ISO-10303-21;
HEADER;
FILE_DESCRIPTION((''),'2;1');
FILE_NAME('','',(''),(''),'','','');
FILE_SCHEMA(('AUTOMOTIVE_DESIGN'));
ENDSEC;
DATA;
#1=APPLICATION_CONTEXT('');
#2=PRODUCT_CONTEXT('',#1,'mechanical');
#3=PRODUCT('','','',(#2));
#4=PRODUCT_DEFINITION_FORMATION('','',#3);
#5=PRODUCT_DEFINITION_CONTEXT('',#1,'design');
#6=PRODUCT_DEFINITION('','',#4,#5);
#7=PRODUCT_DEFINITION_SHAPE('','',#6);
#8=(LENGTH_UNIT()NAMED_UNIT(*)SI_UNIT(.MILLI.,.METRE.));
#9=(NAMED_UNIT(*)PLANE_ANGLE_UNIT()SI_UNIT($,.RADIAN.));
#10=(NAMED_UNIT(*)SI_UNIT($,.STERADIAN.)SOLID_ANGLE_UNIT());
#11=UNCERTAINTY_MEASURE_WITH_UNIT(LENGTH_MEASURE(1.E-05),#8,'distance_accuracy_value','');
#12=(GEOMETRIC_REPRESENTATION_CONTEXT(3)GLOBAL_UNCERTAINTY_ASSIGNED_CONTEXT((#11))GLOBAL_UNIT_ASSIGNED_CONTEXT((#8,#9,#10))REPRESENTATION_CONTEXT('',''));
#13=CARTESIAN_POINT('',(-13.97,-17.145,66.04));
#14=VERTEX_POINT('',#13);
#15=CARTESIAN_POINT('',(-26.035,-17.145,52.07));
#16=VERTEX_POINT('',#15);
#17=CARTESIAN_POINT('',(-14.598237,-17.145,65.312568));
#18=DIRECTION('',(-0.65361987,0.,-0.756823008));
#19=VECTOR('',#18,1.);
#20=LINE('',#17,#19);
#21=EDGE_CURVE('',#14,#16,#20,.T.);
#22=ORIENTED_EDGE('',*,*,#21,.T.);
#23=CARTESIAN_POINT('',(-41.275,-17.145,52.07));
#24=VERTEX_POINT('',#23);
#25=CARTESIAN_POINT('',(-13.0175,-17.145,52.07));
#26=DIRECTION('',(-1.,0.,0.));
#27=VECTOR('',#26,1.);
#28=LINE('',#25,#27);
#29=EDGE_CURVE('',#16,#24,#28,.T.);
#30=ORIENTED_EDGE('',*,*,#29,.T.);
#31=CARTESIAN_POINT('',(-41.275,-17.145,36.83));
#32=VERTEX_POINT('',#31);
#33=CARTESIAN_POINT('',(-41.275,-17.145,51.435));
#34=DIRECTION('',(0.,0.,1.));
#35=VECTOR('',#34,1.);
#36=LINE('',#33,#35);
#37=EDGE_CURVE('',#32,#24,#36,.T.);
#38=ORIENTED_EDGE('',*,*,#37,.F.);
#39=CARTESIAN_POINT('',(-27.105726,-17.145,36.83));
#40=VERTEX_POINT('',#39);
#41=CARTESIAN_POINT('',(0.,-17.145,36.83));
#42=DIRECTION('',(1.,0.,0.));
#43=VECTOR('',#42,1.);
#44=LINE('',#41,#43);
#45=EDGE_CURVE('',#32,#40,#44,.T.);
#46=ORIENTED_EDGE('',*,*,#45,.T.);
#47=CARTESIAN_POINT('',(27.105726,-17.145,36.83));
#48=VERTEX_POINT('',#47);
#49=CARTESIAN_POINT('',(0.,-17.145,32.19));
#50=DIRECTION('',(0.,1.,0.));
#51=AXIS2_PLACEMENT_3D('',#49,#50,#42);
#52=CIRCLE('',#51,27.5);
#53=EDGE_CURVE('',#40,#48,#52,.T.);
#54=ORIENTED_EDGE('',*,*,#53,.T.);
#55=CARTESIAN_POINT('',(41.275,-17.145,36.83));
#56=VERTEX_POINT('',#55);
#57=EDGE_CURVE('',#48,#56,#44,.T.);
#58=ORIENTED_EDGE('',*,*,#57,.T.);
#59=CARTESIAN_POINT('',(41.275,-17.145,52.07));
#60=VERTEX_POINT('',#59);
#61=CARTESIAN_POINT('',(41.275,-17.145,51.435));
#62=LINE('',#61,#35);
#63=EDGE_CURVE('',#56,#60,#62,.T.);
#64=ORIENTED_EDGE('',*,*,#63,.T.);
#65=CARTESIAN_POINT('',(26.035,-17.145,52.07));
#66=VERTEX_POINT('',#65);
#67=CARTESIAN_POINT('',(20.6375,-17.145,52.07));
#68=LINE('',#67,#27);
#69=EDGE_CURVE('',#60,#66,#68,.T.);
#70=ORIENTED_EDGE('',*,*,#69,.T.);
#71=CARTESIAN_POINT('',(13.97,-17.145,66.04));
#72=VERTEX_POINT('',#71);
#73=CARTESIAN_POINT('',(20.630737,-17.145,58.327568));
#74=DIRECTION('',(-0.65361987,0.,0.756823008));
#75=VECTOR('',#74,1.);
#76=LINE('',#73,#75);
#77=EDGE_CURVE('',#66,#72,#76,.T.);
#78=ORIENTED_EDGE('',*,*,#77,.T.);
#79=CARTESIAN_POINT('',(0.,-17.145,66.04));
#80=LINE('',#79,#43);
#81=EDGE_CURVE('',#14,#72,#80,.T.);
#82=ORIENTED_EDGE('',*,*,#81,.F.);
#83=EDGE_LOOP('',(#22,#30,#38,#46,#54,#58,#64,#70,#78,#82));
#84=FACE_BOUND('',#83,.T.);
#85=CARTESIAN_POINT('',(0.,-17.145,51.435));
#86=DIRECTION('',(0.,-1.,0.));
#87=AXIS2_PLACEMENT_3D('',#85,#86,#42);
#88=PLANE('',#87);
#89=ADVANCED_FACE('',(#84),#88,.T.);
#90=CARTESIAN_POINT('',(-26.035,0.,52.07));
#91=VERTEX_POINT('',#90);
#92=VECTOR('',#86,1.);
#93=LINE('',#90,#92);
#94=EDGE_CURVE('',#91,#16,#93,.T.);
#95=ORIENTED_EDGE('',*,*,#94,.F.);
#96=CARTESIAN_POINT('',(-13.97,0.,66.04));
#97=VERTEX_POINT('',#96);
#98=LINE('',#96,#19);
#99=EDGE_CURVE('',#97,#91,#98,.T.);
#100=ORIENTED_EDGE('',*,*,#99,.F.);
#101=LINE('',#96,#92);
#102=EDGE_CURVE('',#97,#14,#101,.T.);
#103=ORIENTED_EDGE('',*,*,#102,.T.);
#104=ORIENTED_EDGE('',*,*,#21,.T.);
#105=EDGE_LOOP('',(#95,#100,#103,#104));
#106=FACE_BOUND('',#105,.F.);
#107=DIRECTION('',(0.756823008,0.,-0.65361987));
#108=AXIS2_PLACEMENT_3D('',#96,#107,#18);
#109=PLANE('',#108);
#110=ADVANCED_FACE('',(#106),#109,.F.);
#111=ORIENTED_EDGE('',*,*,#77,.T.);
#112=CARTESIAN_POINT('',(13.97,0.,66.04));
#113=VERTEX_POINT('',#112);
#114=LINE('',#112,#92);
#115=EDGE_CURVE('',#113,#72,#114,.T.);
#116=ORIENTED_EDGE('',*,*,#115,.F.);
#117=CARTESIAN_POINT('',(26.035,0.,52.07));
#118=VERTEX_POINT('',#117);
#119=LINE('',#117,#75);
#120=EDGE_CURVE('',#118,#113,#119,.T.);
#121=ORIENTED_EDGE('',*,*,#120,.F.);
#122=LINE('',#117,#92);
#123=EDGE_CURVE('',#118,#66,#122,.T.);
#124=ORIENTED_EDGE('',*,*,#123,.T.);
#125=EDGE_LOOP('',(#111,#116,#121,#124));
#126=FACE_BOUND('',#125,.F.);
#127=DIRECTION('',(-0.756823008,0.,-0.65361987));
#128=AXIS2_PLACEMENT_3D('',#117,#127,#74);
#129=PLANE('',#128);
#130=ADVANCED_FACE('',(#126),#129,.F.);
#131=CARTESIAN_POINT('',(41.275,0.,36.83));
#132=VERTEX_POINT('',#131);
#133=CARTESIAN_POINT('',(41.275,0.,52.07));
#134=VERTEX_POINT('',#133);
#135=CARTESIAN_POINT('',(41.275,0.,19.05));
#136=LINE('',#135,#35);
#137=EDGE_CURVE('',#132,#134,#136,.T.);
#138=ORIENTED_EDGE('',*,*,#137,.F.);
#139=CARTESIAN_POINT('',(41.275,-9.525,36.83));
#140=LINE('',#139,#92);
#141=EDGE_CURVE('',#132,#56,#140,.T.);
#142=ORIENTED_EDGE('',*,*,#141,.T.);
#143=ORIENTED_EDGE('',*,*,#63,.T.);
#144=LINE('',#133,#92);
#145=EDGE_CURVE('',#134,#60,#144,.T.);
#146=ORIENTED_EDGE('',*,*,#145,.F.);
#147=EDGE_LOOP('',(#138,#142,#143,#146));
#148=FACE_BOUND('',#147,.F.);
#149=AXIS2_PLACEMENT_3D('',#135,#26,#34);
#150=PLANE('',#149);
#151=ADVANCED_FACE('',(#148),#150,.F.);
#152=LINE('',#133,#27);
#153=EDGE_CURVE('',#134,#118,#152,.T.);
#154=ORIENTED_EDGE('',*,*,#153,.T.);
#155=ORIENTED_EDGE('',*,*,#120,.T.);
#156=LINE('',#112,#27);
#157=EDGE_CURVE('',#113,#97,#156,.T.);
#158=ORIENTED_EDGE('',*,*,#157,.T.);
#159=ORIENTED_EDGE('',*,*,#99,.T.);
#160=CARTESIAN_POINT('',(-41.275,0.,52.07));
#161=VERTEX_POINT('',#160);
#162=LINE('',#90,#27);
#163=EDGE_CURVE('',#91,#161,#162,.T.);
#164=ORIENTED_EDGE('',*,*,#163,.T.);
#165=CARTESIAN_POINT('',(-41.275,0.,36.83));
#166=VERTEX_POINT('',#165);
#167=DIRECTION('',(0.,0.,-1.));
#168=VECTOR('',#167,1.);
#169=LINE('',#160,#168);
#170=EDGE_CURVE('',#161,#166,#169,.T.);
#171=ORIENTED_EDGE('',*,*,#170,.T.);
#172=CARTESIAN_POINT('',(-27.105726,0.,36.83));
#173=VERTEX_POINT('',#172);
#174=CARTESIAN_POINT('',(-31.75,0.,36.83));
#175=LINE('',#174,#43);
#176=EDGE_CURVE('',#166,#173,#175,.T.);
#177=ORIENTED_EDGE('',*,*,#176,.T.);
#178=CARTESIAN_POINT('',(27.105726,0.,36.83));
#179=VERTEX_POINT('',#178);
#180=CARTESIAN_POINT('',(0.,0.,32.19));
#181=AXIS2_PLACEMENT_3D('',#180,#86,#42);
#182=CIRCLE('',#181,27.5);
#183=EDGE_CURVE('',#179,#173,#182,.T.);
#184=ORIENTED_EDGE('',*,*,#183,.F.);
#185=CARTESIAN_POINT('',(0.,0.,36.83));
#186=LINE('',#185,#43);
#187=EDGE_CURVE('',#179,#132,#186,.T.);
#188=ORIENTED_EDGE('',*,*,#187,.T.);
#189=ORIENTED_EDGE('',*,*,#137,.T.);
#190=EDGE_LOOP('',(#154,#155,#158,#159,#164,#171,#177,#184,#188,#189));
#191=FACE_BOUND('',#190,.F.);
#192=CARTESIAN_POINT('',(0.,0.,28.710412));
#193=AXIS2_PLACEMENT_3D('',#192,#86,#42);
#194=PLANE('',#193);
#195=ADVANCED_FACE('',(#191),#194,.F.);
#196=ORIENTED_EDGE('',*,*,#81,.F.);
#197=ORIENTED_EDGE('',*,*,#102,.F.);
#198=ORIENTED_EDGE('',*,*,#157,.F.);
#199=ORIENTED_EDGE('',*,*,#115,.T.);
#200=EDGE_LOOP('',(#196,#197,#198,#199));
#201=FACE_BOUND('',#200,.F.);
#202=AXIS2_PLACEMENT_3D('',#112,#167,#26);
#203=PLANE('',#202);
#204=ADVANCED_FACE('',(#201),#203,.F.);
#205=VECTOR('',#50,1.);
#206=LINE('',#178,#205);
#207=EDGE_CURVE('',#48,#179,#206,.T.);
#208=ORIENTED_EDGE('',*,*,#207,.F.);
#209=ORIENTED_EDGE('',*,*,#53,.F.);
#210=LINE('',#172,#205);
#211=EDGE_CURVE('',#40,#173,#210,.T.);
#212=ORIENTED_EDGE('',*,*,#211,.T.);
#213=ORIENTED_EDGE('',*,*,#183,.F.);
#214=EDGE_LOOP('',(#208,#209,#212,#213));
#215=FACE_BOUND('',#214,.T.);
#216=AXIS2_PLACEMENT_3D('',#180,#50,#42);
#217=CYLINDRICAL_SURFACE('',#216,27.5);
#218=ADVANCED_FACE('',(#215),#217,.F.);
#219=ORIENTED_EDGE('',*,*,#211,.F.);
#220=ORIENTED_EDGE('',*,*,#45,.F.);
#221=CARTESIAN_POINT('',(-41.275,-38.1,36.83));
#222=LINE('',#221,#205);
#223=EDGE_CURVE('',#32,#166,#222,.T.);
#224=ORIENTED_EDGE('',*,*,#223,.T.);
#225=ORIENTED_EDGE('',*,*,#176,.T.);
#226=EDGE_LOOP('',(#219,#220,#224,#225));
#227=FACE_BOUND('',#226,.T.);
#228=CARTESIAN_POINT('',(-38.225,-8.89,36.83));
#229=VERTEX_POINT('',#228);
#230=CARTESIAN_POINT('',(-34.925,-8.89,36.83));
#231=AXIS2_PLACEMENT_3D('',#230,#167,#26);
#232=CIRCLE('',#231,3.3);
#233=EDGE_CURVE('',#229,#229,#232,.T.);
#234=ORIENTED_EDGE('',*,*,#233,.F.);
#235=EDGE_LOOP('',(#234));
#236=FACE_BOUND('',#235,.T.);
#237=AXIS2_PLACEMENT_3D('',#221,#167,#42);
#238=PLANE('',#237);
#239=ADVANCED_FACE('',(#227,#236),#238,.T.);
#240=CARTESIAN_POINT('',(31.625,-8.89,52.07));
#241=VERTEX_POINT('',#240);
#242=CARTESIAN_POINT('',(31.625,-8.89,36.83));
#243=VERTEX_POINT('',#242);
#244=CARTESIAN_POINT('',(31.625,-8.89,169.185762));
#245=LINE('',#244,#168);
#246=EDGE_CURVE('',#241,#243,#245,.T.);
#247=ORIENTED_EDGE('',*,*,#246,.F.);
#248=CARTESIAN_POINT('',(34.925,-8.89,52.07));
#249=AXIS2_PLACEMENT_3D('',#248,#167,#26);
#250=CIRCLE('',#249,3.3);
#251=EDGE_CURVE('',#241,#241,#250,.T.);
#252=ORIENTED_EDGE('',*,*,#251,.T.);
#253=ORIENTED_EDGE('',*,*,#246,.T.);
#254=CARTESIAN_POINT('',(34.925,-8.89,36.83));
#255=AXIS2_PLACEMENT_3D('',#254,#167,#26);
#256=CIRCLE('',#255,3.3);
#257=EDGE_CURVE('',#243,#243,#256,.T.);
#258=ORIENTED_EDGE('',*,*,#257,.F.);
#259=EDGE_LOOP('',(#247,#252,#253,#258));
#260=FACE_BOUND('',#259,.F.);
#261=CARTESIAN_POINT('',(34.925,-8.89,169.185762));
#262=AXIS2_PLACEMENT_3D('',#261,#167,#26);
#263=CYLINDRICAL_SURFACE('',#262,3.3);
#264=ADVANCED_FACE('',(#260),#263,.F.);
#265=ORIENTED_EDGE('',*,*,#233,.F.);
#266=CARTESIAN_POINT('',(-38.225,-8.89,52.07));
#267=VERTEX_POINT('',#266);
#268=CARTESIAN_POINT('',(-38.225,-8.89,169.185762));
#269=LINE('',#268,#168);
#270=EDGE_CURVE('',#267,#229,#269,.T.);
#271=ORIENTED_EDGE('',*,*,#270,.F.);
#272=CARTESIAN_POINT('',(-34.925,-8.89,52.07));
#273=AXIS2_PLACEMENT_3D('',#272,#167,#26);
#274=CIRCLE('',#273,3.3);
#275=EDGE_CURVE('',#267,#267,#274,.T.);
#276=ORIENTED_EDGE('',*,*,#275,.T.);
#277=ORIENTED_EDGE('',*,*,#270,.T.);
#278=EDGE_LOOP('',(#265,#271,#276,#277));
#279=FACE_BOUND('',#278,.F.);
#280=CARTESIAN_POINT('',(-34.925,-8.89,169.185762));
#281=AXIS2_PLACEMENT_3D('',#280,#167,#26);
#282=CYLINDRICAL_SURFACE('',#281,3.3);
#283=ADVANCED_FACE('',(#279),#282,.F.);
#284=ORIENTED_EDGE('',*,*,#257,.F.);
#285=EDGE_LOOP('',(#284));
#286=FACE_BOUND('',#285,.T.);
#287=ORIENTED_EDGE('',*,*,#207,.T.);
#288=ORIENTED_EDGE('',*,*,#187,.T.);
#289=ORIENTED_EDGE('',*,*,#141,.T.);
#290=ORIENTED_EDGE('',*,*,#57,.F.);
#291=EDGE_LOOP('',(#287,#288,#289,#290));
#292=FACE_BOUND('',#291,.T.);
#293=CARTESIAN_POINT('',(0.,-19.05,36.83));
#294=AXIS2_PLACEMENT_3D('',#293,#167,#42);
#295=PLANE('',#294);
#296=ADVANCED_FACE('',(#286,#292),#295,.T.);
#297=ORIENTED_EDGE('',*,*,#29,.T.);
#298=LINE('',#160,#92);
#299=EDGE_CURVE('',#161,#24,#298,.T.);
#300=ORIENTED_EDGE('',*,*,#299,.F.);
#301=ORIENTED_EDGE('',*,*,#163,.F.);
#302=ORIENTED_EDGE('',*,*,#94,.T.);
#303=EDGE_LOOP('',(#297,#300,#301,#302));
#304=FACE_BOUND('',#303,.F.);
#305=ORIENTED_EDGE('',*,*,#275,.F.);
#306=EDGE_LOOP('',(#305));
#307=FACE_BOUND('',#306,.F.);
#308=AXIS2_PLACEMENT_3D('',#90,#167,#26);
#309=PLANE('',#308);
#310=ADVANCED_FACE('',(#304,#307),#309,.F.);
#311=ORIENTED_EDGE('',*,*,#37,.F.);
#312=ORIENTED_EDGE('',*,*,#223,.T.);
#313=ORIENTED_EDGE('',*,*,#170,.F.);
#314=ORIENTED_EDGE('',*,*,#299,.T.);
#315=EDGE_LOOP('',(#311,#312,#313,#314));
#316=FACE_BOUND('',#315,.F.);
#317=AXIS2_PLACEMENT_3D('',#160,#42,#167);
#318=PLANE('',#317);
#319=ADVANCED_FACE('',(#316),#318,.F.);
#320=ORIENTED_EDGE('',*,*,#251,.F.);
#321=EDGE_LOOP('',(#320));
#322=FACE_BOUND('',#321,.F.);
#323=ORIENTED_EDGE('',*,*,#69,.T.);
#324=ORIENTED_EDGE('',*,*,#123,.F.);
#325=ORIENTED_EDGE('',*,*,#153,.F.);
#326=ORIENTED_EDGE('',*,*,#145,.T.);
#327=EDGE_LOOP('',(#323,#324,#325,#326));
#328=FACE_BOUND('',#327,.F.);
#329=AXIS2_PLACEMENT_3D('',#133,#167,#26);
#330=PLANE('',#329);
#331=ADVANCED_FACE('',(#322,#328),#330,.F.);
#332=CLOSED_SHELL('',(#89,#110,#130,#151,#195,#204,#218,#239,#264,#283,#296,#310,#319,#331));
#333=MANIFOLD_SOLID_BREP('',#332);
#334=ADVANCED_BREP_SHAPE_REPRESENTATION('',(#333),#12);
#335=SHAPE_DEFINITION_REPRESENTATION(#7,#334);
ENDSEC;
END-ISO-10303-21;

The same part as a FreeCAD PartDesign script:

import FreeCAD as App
import Part
import Sketcher

V = App.Vector
Q = App.Units.Quantity

doc = App.newDocument("Part")
body = doc.addObject("PartDesign::Body", "Body")

sketch1 = body.newObject("Sketcher::SketchObject", "Sketch")
sketch1.AttachmentSupport = (doc.getObject("XZ_Plane"), [""])
sketch1.MapMode = "FlatFace"
sketch1.addGeometry([
    Part.LineSegment(V(-44.45, 0, 0), V(44.45, 0, 0)),
    Part.LineSegment(V(44.45, 0, 0), V(44.45, 17.78, 0)),
    Part.LineSegment(V(44.45, 17.78, 0), V(41.275, 19.05, 0)),
    Part.LineSegment(V(41.275, 19.05, 0), V(41.275, 52.07, 0)),
    Part.LineSegment(V(41.275, 52.07, 0), V(26.035, 52.07, 0)),
    Part.LineSegment(V(26.035, 52.07, 0), V(13.97, 66.04, 0)),
    Part.LineSegment(V(13.97, 66.04, 0), V(-13.97, 66.04, 0)),
    Part.LineSegment(V(-13.97, 66.04, 0), V(-26.035, 52.07, 0)),
    Part.LineSegment(V(-26.035, 52.07, 0), V(-41.275, 52.07, 0)),
    Part.LineSegment(V(-41.275, 52.07, 0), V(-41.275, 19.05, 0)),
    Part.LineSegment(V(-41.275, 19.05, 0), V(-44.45, 17.78, 0)),
    Part.LineSegment(V(-44.45, 17.78, 0), V(-44.45, 0, 0)),
    Part.Circle(V(0, 32.19, 0), V(0, 0, 1), 27.5),
], False)
sketch1.addConstraint([
    Sketcher.Constraint("Coincident", 0, 2, 1, 1),
    Sketcher.Constraint("Coincident", 1, 2, 2, 1),
    Sketcher.Constraint("Coincident", 2, 2, 3, 1),
    Sketcher.Constraint("Coincident", 3, 2, 4, 1),
    Sketcher.Constraint("Coincident", 4, 2, 5, 1),
    Sketcher.Constraint("Coincident", 5, 2, 6, 1),
    Sketcher.Constraint("Coincident", 6, 2, 7, 1),
    Sketcher.Constraint("Coincident", 7, 2, 8, 1),
    Sketcher.Constraint("Coincident", 8, 2, 9, 1),
    Sketcher.Constraint("Coincident", 9, 2, 10, 1),
    Sketcher.Constraint("Coincident", 10, 2, 11, 1),
    Sketcher.Constraint("Coincident", 11, 2, 0, 1),
    Sketcher.Constraint("Horizontal", 0),
    Sketcher.Constraint("Vertical", 1),
    Sketcher.Constraint("Vertical", 3),
    Sketcher.Constraint("Horizontal", 4),
    Sketcher.Constraint("Horizontal", 6),
    Sketcher.Constraint("Horizontal", 8),
    Sketcher.Constraint("Vertical", 9),
    Sketcher.Constraint("Vertical", 11),
    Sketcher.Constraint("Symmetric", 0, 2, 11, 2, -1, 1),
    Sketcher.Constraint("Symmetric", 4, 2, 7, 2, -2),
    Sketcher.Constraint("Symmetric", 2, 2, 9, 2, -2),
    Sketcher.Constraint("PointOnObject", 12, 3, -2),
    Sketcher.Constraint("Horizontal", 1, 2, 10, 2),
    Sketcher.Constraint("Equal", 5, 7),
    Sketcher.Constraint("DistanceX", 0, 1, 0, 2, Q("3.5 in")),
    Sketcher.Constraint("DistanceX", 4, 2, 4, 1, Q("0.6 in")),
    Sketcher.Constraint("DistanceX", 6, 2, 6, 1, Q("1.1 in")),
    Sketcher.Constraint("DistanceY", 1, 1, 1, 2, Q("0.7 in")),
    Sketcher.Constraint("DistanceY", 3, 1, 3, 2, Q("1.3 in")),
    Sketcher.Constraint("DistanceY", -1, 1, 5, 2, Q("2.6 in")),
    Sketcher.Constraint("Diameter", 12, 55.0),
    Sketcher.Constraint("DistanceY", -1, 1, 2, 2, Q("0.75 in")),
    Sketcher.Constraint("DistanceX", 7, 2, 4, 2, Q("2.05 in")),
    Sketcher.Constraint("DistanceY", -1, 1, 12, 3, 32.19),
])
pad1 = body.newObject("PartDesign::Pad", "Pad")
pad1.Profile = sketch1
pad1.Length = Q("1.5 in")

sketch2 = body.newObject("Sketcher::SketchObject", "Sketch001")
sketch2.AttachmentSupport = (doc.getObject("XZ_Plane"), [""])
sketch2.MapMode = "FlatFace"
sketch2.AttachmentOffset = App.Placement(V(0, 0, 1.5 * 25.4), App.Rotation())
sketch2.addGeometry([
    Part.LineSegment(V(-41.275, 36.83, 0), V(-41.275, 31.75, 0)),
    Part.LineSegment(V(-41.275, 31.75, 0), V(-22.225, 31.75, 0)),
    Part.LineSegment(V(-22.225, 31.75, 0), V(-22.225, 36.83, 0)),
    Part.LineSegment(V(-22.225, 36.83, 0), V(-41.275, 36.83, 0)),
], False)
sketch2.addConstraint([
    Sketcher.Constraint("Coincident", 0, 2, 1, 1),
    Sketcher.Constraint("Coincident", 1, 2, 2, 1),
    Sketcher.Constraint("Coincident", 2, 2, 3, 1),
    Sketcher.Constraint("Coincident", 3, 2, 0, 1),
    Sketcher.Constraint("Vertical", 0),
    Sketcher.Constraint("Horizontal", 1),
    Sketcher.Constraint("Vertical", 2),
    Sketcher.Constraint("Horizontal", 3),
    Sketcher.Constraint("DistanceY", 0, 2, 0, 1, Q("0.2 in")),
    Sketcher.Constraint("DistanceX", 1, 1, 1, 2, Q("0.75 in")),
    Sketcher.Constraint("DistanceY", -1, 1, 0, 2, Q("1.25 in")),
    Sketcher.Constraint("DistanceX", 0, 2, -1, 1, Q("1.625 in")),
])
pocket1 = body.newObject("PartDesign::Pocket", "Pocket")
pocket1.Profile = sketch2
pocket1.Type = "ThroughAll"

sketch3 = body.newObject("Sketcher::SketchObject", "Sketch002")
sketch3.AttachmentSupport = (doc.getObject("XY_Plane"), [""])
sketch3.MapMode = "FlatFace"
sketch3.AttachmentOffset = App.Placement(V(0, 0, 2.05 * 25.4), App.Rotation())
sketch3.addGeometry([
    Part.Circle(V(-34.925, -8.89, 0), V(0, 0, 1), 3.3),
    Part.Circle(V(-34.925, -29.21, 0), V(0, 0, 1), 3.3),
    Part.Circle(V(34.925, -8.89, 0), V(0, 0, 1), 3.3),
    Part.Circle(V(34.925, -29.21, 0), V(0, 0, 1), 3.3),
], False)
sketch3.addConstraint([
    Sketcher.Constraint("Equal", 0, 1),
    Sketcher.Constraint("Equal", 1, 2),
    Sketcher.Constraint("Equal", 2, 3),
    Sketcher.Constraint("Symmetric", 0, 3, 2, 3, -2),
    Sketcher.Constraint("Symmetric", 1, 3, 3, 3, -2),
    Sketcher.Constraint("Vertical", 0, 3, 1, 3),
    Sketcher.Constraint("DistanceY", 1, 3, 0, 3, Q("0.8 in")),
    Sketcher.Constraint("Diameter", 0, 6.6),
    Sketcher.Constraint("DistanceY", 0, 3, -1, 1, Q("0.35 in")),
    Sketcher.Constraint("DistanceX", 0, 3, 2, 3, Q("2.75 in")),
])
doc.recompute()
hole = body.newObject("PartDesign::Hole", "Hole")
hole.Profile = sketch3
hole.ThreadType = "None"
hole.Diameter = 6.6
hole.DepthType = "ThroughAll"

sketch4 = body.newObject("Sketcher::SketchObject", "Sketch003")
sketch4.AttachmentSupport = (doc.getObject("XY_Plane"), [""])
sketch4.MapMode = "FlatFace"
sketch4.addGeometry([
    Part.LineSegment(V(-44.45, -38.1, 0), V(-44.45, 0, 0)),
    Part.LineSegment(V(-44.45, 0, 0), V(44.45, 0, 0)),
    Part.LineSegment(V(44.45, 0, 0), V(44.45, -38.1, 0)),
    Part.LineSegment(V(44.45, -38.1, 0), V(-44.45, -38.1, 0)),
], False)
sketch4.addConstraint([
    Sketcher.Constraint("Coincident", 0, 2, 1, 1),
    Sketcher.Constraint("Coincident", 1, 2, 2, 1),
    Sketcher.Constraint("Coincident", 2, 2, 3, 1),
    Sketcher.Constraint("Coincident", 3, 2, 0, 1),
    Sketcher.Constraint("Vertical", 0),
    Sketcher.Constraint("Horizontal", 1),
    Sketcher.Constraint("Vertical", 2),
    Sketcher.Constraint("Horizontal", 3),
    Sketcher.Constraint("Symmetric", 0, 2, 1, 2, -1, 1),
    Sketcher.Constraint("DistanceX", 1, 1, 1, 2, Q("3.5 in")),
    Sketcher.Constraint("DistanceY", 0, 1, 0, 2, Q("1.5 in")),
])
pocket2 = body.newObject("PartDesign::Pocket", "Pocket001")
pocket2.Profile = sketch4
pocket2.Length = Q("1.45 in")
pocket2.Reversed = True

sketch5 = body.newObject("Sketcher::SketchObject", "Sketch004")
sketch5.AttachmentSupport = (doc.getObject("XZ_Plane"), [""])
sketch5.MapMode = "FlatFace"
sketch5.AttachmentOffset = App.Placement(V(0, 0, 1.5 * 25.4), App.Rotation())
sketch5.addGeometry([
    Part.LineSegment(V(-41.275, 66.04, 0), V(-41.275, 36.83, 0)),
    Part.LineSegment(V(-41.275, 36.83, 0), V(41.275, 36.83, 0)),
    Part.LineSegment(V(41.275, 36.83, 0), V(41.275, 66.04, 0)),
    Part.LineSegment(V(41.275, 66.04, 0), V(-41.275, 66.04, 0)),
], False)
sketch5.addConstraint([
    Sketcher.Constraint("Coincident", 0, 2, 1, 1),
    Sketcher.Constraint("Coincident", 1, 2, 2, 1),
    Sketcher.Constraint("Coincident", 2, 2, 3, 1),
    Sketcher.Constraint("Coincident", 3, 2, 0, 1),
    Sketcher.Constraint("Vertical", 0),
    Sketcher.Constraint("Horizontal", 1),
    Sketcher.Constraint("Vertical", 2),
    Sketcher.Constraint("Horizontal", 3),
    Sketcher.Constraint("DistanceX", 1, 1, 1, 2, Q("3.25 in")),
    Sketcher.Constraint("DistanceY", 0, 2, 0, 1, Q("1.15 in")),
    Sketcher.Constraint("DistanceY", -1, 1, 2, 2, Q("2.6 in")),
    Sketcher.Constraint("DistanceX", 0, 2, -1, 1, Q("1.625 in")),
])
pocket3 = body.newObject("PartDesign::Pocket", "Pocket002")
pocket3.Profile = sketch5
pocket3.Length = Q("0.825 in")

doc.recompute()
